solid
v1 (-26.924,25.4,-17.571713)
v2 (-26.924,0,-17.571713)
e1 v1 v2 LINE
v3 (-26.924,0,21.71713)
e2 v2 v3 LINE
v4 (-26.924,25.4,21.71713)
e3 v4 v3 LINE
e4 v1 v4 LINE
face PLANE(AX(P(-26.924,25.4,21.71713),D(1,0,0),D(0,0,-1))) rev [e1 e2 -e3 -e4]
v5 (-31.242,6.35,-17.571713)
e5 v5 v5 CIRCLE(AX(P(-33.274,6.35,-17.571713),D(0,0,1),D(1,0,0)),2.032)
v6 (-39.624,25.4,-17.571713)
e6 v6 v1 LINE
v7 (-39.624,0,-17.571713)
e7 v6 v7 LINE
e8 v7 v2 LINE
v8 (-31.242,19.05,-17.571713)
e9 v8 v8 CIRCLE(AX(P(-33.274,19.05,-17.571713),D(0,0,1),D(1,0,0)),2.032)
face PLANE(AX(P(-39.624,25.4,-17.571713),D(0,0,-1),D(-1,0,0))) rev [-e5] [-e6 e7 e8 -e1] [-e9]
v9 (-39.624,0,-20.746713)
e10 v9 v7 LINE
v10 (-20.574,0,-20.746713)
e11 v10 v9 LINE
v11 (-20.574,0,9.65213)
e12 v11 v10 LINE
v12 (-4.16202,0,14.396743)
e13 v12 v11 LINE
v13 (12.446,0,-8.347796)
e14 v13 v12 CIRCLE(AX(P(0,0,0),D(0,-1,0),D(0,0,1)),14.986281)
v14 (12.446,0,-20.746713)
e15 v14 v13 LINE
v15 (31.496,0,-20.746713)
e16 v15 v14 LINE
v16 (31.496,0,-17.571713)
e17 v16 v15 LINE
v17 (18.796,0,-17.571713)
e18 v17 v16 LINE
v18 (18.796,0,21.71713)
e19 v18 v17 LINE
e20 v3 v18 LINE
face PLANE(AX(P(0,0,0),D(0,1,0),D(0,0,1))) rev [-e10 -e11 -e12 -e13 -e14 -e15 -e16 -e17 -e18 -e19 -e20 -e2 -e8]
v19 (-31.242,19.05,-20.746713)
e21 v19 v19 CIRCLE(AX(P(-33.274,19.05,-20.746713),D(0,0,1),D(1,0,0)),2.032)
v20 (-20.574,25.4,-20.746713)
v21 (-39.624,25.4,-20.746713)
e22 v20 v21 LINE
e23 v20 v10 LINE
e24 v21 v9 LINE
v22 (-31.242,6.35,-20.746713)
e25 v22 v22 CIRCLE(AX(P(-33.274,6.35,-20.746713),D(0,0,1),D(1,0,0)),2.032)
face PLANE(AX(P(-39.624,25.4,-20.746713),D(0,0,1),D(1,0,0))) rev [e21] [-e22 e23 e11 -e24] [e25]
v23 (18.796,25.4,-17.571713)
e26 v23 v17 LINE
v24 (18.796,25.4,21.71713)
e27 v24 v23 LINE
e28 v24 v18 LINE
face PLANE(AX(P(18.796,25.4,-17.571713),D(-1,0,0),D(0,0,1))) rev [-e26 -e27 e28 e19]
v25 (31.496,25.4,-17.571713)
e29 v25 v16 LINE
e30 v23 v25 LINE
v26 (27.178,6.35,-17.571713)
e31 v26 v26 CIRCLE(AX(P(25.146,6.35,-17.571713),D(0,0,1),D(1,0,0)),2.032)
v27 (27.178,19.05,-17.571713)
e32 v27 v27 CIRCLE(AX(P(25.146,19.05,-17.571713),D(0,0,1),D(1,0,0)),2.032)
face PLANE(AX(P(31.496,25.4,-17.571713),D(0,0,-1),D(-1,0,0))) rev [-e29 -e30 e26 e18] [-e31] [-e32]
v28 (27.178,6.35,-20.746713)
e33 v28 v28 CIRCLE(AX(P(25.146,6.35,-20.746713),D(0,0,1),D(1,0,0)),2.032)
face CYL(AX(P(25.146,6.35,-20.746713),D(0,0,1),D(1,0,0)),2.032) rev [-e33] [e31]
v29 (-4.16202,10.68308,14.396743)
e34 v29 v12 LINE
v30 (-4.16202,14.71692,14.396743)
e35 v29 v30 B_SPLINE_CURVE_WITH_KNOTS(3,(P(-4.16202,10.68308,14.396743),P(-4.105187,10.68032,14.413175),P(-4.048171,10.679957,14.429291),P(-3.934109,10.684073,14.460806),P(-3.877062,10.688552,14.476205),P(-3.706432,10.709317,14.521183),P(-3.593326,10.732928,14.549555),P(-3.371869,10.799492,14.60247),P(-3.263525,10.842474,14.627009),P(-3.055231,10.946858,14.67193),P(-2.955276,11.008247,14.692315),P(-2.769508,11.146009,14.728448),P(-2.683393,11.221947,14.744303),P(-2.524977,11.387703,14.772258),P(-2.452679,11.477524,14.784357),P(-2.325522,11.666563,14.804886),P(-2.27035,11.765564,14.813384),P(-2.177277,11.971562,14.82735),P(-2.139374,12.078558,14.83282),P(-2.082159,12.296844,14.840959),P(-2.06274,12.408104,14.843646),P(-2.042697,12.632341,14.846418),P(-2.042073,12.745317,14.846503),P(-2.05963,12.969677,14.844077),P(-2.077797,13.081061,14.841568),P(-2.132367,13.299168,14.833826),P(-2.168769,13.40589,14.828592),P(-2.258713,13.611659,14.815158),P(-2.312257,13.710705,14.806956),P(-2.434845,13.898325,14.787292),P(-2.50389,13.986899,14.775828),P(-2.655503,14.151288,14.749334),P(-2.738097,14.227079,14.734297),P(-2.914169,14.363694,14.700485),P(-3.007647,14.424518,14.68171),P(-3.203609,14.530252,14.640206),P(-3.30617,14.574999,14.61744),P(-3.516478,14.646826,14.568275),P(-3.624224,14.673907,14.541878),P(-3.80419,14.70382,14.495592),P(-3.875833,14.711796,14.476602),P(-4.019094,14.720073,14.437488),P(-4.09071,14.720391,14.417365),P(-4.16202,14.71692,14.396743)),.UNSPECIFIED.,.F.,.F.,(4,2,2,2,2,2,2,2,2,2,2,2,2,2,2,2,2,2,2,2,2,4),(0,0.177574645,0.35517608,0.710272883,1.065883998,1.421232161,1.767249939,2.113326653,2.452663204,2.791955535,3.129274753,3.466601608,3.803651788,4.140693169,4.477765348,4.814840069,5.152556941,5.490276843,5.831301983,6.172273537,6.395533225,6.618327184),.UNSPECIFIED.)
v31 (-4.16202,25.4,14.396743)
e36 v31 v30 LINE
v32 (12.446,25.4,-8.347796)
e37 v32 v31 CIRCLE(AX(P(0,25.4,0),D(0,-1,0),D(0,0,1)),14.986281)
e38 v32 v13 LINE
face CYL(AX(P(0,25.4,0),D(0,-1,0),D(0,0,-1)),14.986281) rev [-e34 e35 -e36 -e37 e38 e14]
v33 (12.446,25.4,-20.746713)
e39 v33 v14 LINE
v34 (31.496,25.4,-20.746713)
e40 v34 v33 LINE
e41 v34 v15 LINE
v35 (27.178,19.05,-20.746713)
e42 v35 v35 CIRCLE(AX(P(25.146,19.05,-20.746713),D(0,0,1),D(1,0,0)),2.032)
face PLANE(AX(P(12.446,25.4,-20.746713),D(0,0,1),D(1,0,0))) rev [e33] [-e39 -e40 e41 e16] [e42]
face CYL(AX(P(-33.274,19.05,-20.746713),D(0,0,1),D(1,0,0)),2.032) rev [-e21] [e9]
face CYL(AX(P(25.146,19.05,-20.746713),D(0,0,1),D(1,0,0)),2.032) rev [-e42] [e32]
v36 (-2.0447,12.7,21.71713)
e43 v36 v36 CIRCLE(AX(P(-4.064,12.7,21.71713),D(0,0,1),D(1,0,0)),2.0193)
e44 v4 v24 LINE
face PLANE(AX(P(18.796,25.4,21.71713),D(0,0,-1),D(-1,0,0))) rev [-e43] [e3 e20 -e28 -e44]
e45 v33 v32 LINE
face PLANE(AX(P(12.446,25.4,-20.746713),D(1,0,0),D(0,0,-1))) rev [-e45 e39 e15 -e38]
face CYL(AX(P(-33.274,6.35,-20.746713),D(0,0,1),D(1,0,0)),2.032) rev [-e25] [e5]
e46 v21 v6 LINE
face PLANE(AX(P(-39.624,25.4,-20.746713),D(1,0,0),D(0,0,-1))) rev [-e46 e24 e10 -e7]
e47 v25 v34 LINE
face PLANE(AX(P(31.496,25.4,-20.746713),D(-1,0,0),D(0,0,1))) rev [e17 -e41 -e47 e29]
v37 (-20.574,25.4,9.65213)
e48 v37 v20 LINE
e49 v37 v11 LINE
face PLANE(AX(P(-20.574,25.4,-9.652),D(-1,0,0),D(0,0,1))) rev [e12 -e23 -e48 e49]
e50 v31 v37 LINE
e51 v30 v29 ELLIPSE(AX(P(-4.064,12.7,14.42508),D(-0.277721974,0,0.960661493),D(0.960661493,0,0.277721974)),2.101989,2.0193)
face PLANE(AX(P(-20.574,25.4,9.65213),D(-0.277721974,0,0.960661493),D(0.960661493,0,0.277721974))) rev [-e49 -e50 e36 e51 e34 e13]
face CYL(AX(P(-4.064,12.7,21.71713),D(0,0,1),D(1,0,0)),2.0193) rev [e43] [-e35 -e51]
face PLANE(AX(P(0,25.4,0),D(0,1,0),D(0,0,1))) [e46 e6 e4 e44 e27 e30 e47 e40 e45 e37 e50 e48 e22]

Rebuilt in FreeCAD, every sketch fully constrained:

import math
import FreeCAD as App
import Part
import Sketcher

V = App.Vector
Q = App.Units.Quantity

doc = App.newDocument("Part")
body = doc.addObject("PartDesign::Body", "Body")

sketch1 = doc.addObject("Sketcher::SketchObject", "Sketch")
body.addObject(sketch1)
sketch1.AttachmentSupport = (doc.XZ_Plane, [""])
sketch1.MapMode = "FlatFace"
sketch1.addGeometry(Part.LineSegment(V(-4.2, 14.4, 0), V(-20.6, 9.7, 0)), False)
sketch1.addGeometry(Part.LineSegment(V(-20.6, 9.7, 0), V(-20.6, -20.7, 0)), False)
sketch1.addGeometry(Part.LineSegment(V(-20.6, -20.7, 0), V(-39.6, -20.7, 0)), False)
sketch1.addGeometry(Part.LineSegment(V(-39.6, -20.7, 0), V(-39.6, -17.6, 0)), False)
sketch1.addGeometry(Part.LineSegment(V(-39.6, -17.6, 0), V(-26.9, -17.6, 0)), False)
sketch1.addGeometry(Part.LineSegment(V(-26.9, -17.6, 0), V(-26.9, 21.7, 0)), False)
sketch1.addGeometry(Part.LineSegment(V(-26.9, 21.7, 0), V(18.8, 21.7, 0)), False)
sketch1.addGeometry(Part.LineSegment(V(18.8, 21.7, 0), V(18.8, -17.6, 0)), False)
sketch1.addGeometry(Part.LineSegment(V(18.8, -17.6, 0), V(31.5, -17.6, 0)), False)
sketch1.addGeometry(Part.LineSegment(V(31.5, -17.6, 0), V(31.5, -20.7, 0)), False)
sketch1.addGeometry(Part.LineSegment(V(31.5, -20.7, 0), V(12.4, -20.7, 0)), False)
sketch1.addGeometry(Part.LineSegment(V(12.4, -20.7, 0), V(12.4, -8.3, 0)), False)
sketch1.addGeometry(Part.ArcOfCircle(Part.Circle(V(0, 0, 0), V(0, 0, 1), 15), math.radians(-34), math.radians(106)), False)
sketch1.addConstraint(Sketcher.Constraint("Coincident", 0, 2, 1, 1))
sketch1.addConstraint(Sketcher.Constraint("Coincident", 1, 2, 2, 1))
sketch1.addConstraint(Sketcher.Constraint("Coincident", 2, 2, 3, 1))
sketch1.addConstraint(Sketcher.Constraint("Coincident", 3, 2, 4, 1))
sketch1.addConstraint(Sketcher.Constraint("Coincident", 4, 2, 5, 1))
sketch1.addConstraint(Sketcher.Constraint("Coincident", 5, 2, 6, 1))
sketch1.addConstraint(Sketcher.Constraint("Coincident", 6, 2, 7, 1))
sketch1.addConstraint(Sketcher.Constraint("Coincident", 7, 2, 8, 1))
sketch1.addConstraint(Sketcher.Constraint("Coincident", 8, 2, 9, 1))
sketch1.addConstraint(Sketcher.Constraint("Coincident", 9, 2, 10, 1))
sketch1.addConstraint(Sketcher.Constraint("Coincident", 10, 2, 11, 1))
sketch1.addConstraint(Sketcher.Constraint("Coincident", 11, 2, 12, 1))
sketch1.addConstraint(Sketcher.Constraint("Tangent", 12, 2, 0, 1))
sketch1.addConstraint(Sketcher.Constraint("Vertical", 1))
sketch1.addConstraint(Sketcher.Constraint("Horizontal", 2))
sketch1.addConstraint(Sketcher.Constraint("Vertical", 3))
sketch1.addConstraint(Sketcher.Constraint("Horizontal", 4))
sketch1.addConstraint(Sketcher.Constraint("Vertical", 5))
sketch1.addConstraint(Sketcher.Constraint("Horizontal", 6))
sketch1.addConstraint(Sketcher.Constraint("Vertical", 7))
sketch1.addConstraint(Sketcher.Constraint("Horizontal", 8))
sketch1.addConstraint(Sketcher.Constraint("Vertical", 9))
sketch1.addConstraint(Sketcher.Constraint("Horizontal", 10))
sketch1.addConstraint(Sketcher.Constraint("Vertical", 11))
sketch1.addConstraint(Sketcher.Constraint("Coincident", 12, 3, -1, 1))
sketch1.addConstraint(Sketcher.Constraint("Horizontal", 4, 2, 7, 2))
sketch1.addConstraint(Sketcher.Constraint("Horizontal", 2, 2, 9, 2))
sketch1.addConstraint(Sketcher.Constraint("Equal", 4, 8))
sketch1.addConstraint(Sketcher.Constraint("Equal", 2, 10))
sketch1.addConstraint(Sketcher.Constraint("DistanceX", 4, 1, 4, 2, Q("0.5 in")))
sketch1.addConstraint(Sketcher.Constraint("DistanceX", 6, 1, 6, 2, Q("1.8 in")))
sketch1.addConstraint(Sketcher.Constraint("DistanceX", 2, 2, 2, 1, Q("0.75 in")))
sketch1.addConstraint(Sketcher.Constraint("DistanceY", 3, 1, 3, 2, Q("0.125 in")))
sketch1.addConstraint(Sketcher.Constraint("DistanceX", 0, 2, -1, 1, Q("0.81 in")))
sketch1.addConstraint(Sketcher.Constraint("Radius", 12, 14.986281))
sketch1.addConstraint(Sketcher.Constraint("DistanceY", 0, 2, 5, 2, Q("0.475 in")))
sketch1.addConstraint(Sketcher.Constraint("Distance", 0, Q("0.6726 in")))
sketch1.addConstraint(Sketcher.Constraint("DistanceY", 1, 2, 1, 1, 30.398842))
pad1 = doc.addObject("PartDesign::Pad", "Pad")
body.addObject(pad1)
pad1.Profile = sketch1
pad1.Length = Q("1 in")
pad1.Reversed = True

sketch2 = doc.addObject("Sketcher::SketchObject", "Sketch001")
body.addObject(sketch2)
sketch2.AttachmentSupport = (doc.XY_Plane, [""])
sketch2.MapMode = "FlatFace"
sketch2.AttachmentOffset = App.Placement(V(0, 0, -17.571713), App.Rotation())
sketch2.addGeometry(Part.Circle(V(-33.3, 19.1, 0), V(0, 0, 1), 2), False)
sketch2.addGeometry(Part.Circle(V(-33.3, 6.3, 0), V(0, 0, 1), 2), False)
sketch2.addGeometry(Part.Circle(V(25.1, 19.1, 0), V(0, 0, 1), 2), False)
sketch2.addGeometry(Part.Circle(V(25.1, 6.3, 0), V(0, 0, 1), 2), False)
sketch2.addConstraint(Sketcher.Constraint("Equal", 0, 1))
sketch2.addConstraint(Sketcher.Constraint("Equal", 1, 2))
sketch2.addConstraint(Sketcher.Constraint("Equal", 2, 3))
sketch2.addConstraint(Sketcher.Constraint("Horizontal", 0, 3, 2, 3))
sketch2.addConstraint(Sketcher.Constraint("Horizontal", 1, 3, 3, 3))
sketch2.addConstraint(Sketcher.Constraint("Vertical", 0, 3, 1, 3))
sketch2.addConstraint(Sketcher.Constraint("Vertical", 2, 3, 3, 3))
sketch2.addConstraint(Sketcher.Constraint("Diameter", 0, Q("0.16 in")))
sketch2.addConstraint(Sketcher.Constraint("DistanceY", 1, 3, 0, 3, Q("0.5 in")))
sketch2.addConstraint(Sketcher.Constraint("DistanceX", 0, 3, 2, 3, Q("2.3 in")))
sketch2.addConstraint(Sketcher.Constraint("DistanceX", 0, 3, -1, 1, Q("1.31 in")))
sketch2.addConstraint(Sketcher.Constraint("DistanceY", -1, 1, 0, 3, Q("0.75 in")))
pocket1 = doc.addObject("PartDesign::Pocket", "Pocket")
body.addObject(pocket1)
pocket1.Profile = sketch2
pocket1.Type = "ThroughAll"

sketch3 = doc.addObject("Sketcher::SketchObject", "Sketch002")
body.addObject(sketch3)
sketch3.AttachmentSupport = (doc.XY_Plane, [""])
sketch3.MapMode = "FlatFace"
sketch3.AttachmentOffset = App.Placement(V(0, 0, 21.71713), App.Rotation())
sketch3.addGeometry(Part.Circle(V(-4.1, 12.7, 0), V(0, 0, 1), 2), False)
sketch3.addConstraint(Sketcher.Constraint("Diameter", 0, Q("0.159 in")))
sketch3.addConstraint(Sketcher.Constraint("DistanceY", -1, 1, 0, 3, Q("0.5 in")))
sketch3.addConstraint(Sketcher.Constraint("DistanceX", 0, 3, -1, 1, Q("0.16 in")))
doc.recompute()
hole = doc.addObject("PartDesign::Hole", "Hole")
body.addObject(hole)
hole.Profile = sketch3
hole.ThreadType = "None"
hole.Diameter = Q("0.159 in")
hole.DepthType = "ThroughAll"

doc.recompute()
